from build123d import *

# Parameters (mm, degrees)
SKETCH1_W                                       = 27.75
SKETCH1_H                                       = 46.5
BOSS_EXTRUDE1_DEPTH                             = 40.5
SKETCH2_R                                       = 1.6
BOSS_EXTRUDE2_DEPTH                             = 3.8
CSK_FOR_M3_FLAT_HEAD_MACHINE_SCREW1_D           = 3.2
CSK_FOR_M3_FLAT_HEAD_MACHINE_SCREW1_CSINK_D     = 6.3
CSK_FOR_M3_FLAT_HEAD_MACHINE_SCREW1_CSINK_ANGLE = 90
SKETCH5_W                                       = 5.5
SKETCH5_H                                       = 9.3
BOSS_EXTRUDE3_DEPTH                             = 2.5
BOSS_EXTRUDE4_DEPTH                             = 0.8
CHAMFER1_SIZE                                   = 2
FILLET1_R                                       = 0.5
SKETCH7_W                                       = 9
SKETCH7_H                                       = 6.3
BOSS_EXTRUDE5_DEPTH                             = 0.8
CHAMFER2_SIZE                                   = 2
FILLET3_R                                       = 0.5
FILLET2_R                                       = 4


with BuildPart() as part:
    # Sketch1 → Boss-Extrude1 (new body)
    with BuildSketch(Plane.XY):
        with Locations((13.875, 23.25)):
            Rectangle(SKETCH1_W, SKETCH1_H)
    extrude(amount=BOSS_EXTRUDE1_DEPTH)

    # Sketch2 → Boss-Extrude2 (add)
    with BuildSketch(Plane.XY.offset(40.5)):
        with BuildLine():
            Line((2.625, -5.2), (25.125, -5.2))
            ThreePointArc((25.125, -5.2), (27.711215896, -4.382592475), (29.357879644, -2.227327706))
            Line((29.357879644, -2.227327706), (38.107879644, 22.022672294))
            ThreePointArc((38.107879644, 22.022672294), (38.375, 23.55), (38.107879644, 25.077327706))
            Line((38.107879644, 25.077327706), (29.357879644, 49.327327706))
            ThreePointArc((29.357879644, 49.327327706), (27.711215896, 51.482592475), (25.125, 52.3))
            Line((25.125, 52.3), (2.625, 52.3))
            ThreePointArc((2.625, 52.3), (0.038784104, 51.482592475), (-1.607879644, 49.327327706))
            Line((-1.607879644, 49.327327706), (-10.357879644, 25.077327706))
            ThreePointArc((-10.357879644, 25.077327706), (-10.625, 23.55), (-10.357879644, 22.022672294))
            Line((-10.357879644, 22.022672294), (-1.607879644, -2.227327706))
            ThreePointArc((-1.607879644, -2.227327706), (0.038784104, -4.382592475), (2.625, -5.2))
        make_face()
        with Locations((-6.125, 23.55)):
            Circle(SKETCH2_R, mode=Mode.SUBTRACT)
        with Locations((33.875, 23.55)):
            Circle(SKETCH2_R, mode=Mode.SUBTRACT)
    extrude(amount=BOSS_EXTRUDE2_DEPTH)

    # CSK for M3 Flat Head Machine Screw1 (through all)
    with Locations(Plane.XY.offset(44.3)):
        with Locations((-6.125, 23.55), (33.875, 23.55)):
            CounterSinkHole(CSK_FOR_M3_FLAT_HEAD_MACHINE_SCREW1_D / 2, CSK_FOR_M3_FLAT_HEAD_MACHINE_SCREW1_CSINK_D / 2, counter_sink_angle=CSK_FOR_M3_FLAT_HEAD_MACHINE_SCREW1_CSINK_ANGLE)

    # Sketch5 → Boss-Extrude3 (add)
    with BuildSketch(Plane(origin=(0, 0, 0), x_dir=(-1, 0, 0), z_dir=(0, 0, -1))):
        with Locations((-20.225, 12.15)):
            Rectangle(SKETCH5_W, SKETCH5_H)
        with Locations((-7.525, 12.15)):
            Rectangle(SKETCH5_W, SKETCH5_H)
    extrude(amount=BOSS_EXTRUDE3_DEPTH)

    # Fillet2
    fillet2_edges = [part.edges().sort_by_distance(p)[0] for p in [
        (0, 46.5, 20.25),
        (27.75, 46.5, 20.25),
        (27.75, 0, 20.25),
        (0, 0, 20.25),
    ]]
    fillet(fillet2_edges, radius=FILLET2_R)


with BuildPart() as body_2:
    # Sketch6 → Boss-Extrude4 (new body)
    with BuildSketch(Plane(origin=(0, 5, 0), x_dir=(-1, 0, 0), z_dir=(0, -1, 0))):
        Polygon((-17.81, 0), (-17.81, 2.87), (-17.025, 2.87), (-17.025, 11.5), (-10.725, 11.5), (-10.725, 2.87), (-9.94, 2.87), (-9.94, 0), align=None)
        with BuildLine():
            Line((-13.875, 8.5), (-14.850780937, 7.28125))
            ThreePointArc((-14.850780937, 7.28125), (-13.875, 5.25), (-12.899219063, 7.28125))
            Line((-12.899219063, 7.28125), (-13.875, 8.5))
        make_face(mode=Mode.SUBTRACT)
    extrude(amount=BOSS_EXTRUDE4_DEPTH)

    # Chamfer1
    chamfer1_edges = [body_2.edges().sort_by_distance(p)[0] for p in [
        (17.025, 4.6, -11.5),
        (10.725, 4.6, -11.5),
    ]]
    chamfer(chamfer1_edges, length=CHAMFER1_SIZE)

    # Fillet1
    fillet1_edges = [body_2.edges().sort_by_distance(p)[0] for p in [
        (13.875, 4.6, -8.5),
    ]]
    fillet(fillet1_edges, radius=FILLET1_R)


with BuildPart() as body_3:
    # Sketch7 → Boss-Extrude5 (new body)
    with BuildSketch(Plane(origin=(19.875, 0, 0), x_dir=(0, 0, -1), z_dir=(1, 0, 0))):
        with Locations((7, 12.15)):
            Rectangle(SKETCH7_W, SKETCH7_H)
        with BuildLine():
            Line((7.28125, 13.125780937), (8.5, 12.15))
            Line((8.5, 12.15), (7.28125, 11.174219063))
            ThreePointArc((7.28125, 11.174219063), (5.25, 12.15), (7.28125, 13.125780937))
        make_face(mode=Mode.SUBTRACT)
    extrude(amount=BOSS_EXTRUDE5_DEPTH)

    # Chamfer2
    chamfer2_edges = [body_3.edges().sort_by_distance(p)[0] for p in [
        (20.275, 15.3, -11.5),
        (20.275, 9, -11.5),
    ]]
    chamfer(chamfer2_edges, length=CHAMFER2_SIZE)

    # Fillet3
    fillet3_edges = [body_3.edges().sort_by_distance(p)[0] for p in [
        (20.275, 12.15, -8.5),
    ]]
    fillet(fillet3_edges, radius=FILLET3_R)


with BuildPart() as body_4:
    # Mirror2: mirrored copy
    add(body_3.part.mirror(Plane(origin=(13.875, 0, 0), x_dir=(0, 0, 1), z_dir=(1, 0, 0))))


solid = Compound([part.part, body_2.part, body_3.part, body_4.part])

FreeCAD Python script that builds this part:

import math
import FreeCAD as App
import Part
import Sketcher

V = App.Vector


def edges_at(feature, points):
    """Names of the edges that pass closest to the given points."""
    edges = feature.Shape.Edges
    near = lambda p: min(range(len(edges)), key=lambda i: edges[i].distToShape(Part.Vertex(*p))[0])
    return sorted({f"Edge{near(p) + 1}" for p in points})

doc = App.newDocument("Part")
body = doc.addObject("PartDesign::Body", "Body")

# Sketch on XY plane
sketch1 = doc.addObject("Sketcher::SketchObject", "Sketch")
body.addObject(sketch1)
sketch1.AttachmentSupport = (doc.XY_Plane, [""])
sketch1.MapMode = "FlatFace"
sketch1.addGeometry([
    Part.LineSegment(V(0, 46, 0), V(0, 0, 0)),
    Part.LineSegment(V(0, 0, 0), V(28, 0, 0)),
    Part.LineSegment(V(28, 0, 0), V(28, 46, 0)),
    Part.LineSegment(V(28, 46, 0), V(0, 46, 0)),
], False)
sketch1.addConstraint([
    Sketcher.Constraint("Coincident", 0, 2, 1, 1),
    Sketcher.Constraint("Coincident", 1, 2, 2, 1),
    Sketcher.Constraint("Coincident", 2, 2, 3, 1),
    Sketcher.Constraint("Coincident", 3, 2, 0, 1),
    Sketcher.Constraint("Vertical", 0),
    Sketcher.Constraint("Horizontal", 1),
    Sketcher.Constraint("Vertical", 2),
    Sketcher.Constraint("Horizontal", 3),
    Sketcher.Constraint("Coincident", 0, 2, -1, 1),
    Sketcher.Constraint("DistanceY", 0, 2, 0, 1, 46.5),
    Sketcher.Constraint("DistanceX", 1, 1, 1, 2, 27.75),
])
pad1 = doc.addObject("PartDesign::Pad", "Pad")
body.addObject(pad1)
pad1.Profile = sketch1
pad1.Length = 40.5

# Sketch on XY plane
sketch2 = doc.addObject("Sketcher::SketchObject", "Sketch001")
body.addObject(sketch2)
sketch2.AttachmentSupport = (doc.XY_Plane, [""])
sketch2.MapMode = "FlatFace"
sketch2.AttachmentOffset = App.Placement(V(0, 0, 40.5), App.Rotation())
sketch2.addGeometry([
    Part.LineSegment(V(2.6, -5.2, 0), V(25.1, -5.2, 0)),  # 0
    Part.ArcOfCircle(Part.Circle(V(25.1, -0.7, 0), V(0, 0, 1), 4.5), math.radians(-90), math.radians(-20)),  # 1
    Part.LineSegment(V(29.4, -2.2, 0), V(38.1, 22, 0)),  # 2
    Part.ArcOfCircle(Part.Circle(V(33.9, 23.6, 0), V(0, 0, 1), 4.5), math.radians(-20), math.radians(20)),  # 3
    Part.LineSegment(V(38.1, 25.1, 0), V(29.4, 49.3, 0)),  # 4
    Part.ArcOfCircle(Part.Circle(V(25.1, 47.8, 0), V(0, 0, 1), 4.5), math.radians(20), math.radians(90)),  # 5
    Part.LineSegment(V(25.1, 52.3, 0), V(2.6, 52.3, 0)),  # 6
    Part.ArcOfCircle(Part.Circle(V(2.6, 47.8, 0), V(0, 0, 1), 4.5), math.radians(90), math.radians(160)),  # 7
    Part.LineSegment(V(-1.6, 49.3, 0), V(-10.4, 25.1, 0)),  # 8
    Part.ArcOfCircle(Part.Circle(V(-6.1, 23.6, 0), V(0, 0, 1), 4.5), math.radians(160), math.radians(200)),  # 9
    Part.LineSegment(V(-10.4, 22, 0), V(-1.6, -2.2, 0)),  # 10
    Part.ArcOfCircle(Part.Circle(V(2.6, -0.7, 0), V(0, 0, 1), 4.5), math.radians(-160), math.radians(-90)),  # 11
    Part.Circle(V(-6.1, 23.6, 0), V(0, 0, 1), 1.6),  # 12
    Part.Circle(V(33.9, 23.6, 0), V(0, 0, 1), 1.6),  # 13
], False)
sketch2.addConstraint([
    Sketcher.Constraint("Tangent", 0, 2, 1, 1),
    Sketcher.Constraint("Tangent", 1, 2, 2, 1),
    Sketcher.Constraint("Tangent", 2, 2, 3, 1),
    Sketcher.Constraint("Tangent", 3, 2, 4, 1),
    Sketcher.Constraint("Tangent", 4, 2, 5, 1),
    Sketcher.Constraint("Tangent", 5, 2, 6, 1),
    Sketcher.Constraint("Tangent", 6, 2, 7, 1),
    Sketcher.Constraint("Tangent", 7, 2, 8, 1),
    Sketcher.Constraint("Tangent", 8, 2, 9, 1),
    Sketcher.Constraint("Tangent", 9, 2, 10, 1),
    Sketcher.Constraint("Tangent", 10, 2, 11, 1),
    Sketcher.Constraint("Tangent", 11, 2, 0, 1),
    Sketcher.Constraint("Horizontal", 0),
    Sketcher.Constraint("Horizontal", 6),
    Sketcher.Constraint("Coincident", 12, 3, 9, 3),
    Sketcher.Constraint("Coincident", 13, 3, 3, 3),
    Sketcher.Constraint("Equal", 1, 3),
    Sketcher.Constraint("Equal", 3, 5),
    Sketcher.Constraint("Equal", 5, 7),
    Sketcher.Constraint("Equal", 7, 9),
    Sketcher.Constraint("Equal", 9, 11),
    Sketcher.Constraint("Equal", 12, 13),
    Sketcher.Constraint("Parallel", 2, 8),
    Sketcher.Constraint("Parallel", 4, 10),
    Sketcher.Constraint("Horizontal", 3, 3, 9, 3),
    Sketcher.Constraint("Horizontal", 4, 2, 7, 2),
    Sketcher.Constraint("Vertical", 1, 3, 5, 3),
    Sketcher.Constraint("Diameter", 12, 3.2),
    Sketcher.Constraint("Radius", 1, 4.5),
    Sketcher.Constraint("DistanceX", 0, 1, 0, 2, 22.5),
    Sketcher.Constraint("DistanceX", 9, 3, 3, 3, 40.0),
    Sketcher.Constraint("DistanceY", 1, 3, -1, 1, 0.7),
    Sketcher.Constraint("DistanceY", -1, 1, 5, 3, 47.8),
    Sketcher.Constraint("DistanceX", -1, 1, 1, 3, 25.125),
])
pad2 = doc.addObject("PartDesign::Pad", "Pad001")
body.addObject(pad2)
pad2.Profile = sketch2
pad2.Length = 3.8

# Sketch on XY plane
sketch3 = doc.addObject("Sketcher::SketchObject", "Sketch002")
body.addObject(sketch3)
sketch3.AttachmentSupport = (doc.XY_Plane, [""])
sketch3.MapMode = "FlatFace"
sketch3.AttachmentOffset = App.Placement(V(0, 0, 44.3), App.Rotation())
sketch3.addGeometry([
    Part.Circle(V(-6.1, 23.6, 0), V(0, 0, 1), 1.6),
    Part.Circle(V(33.9, 23.6, 0), V(0, 0, 1), 1.6),
], False)
sketch3.addConstraint([
    Sketcher.Constraint("Equal", 0, 1),
    Sketcher.Constraint("Horizontal", 0, 3, 1, 3),
    Sketcher.Constraint("Diameter", 0, 3.2),
    Sketcher.Constraint("DistanceX", 0, 3, 1, 3, 40.0),
    Sketcher.Constraint("DistanceY", -1, 1, 0, 3, 23.55),
    Sketcher.Constraint("DistanceX", 0, 3, -1, 1, 6.125),
])
doc.recompute()
hole = doc.addObject("PartDesign::Hole", "Hole")
body.addObject(hole)
hole.Profile = sketch3
hole.ThreadType = "None"
hole.Diameter = 3.2
hole.DepthType = "ThroughAll"
hole.HoleCutType = "Countersink"
hole.HoleCutDiameter = 6.3
hole.HoleCutCountersinkAngle = 90

# Sketch on XY plane
sketch4 = doc.addObject("Sketcher::SketchObject", "Sketch003")
body.addObject(sketch4)
sketch4.AttachmentSupport = (doc.XY_Plane, [""])
sketch4.MapMode = "FlatFace"
sketch4.addGeometry([
    Part.LineSegment(V(23, 17, 0), V(23, 8, 0)),  # 0
    Part.LineSegment(V(23, 8, 0), V(17, 8, 0)),  # 1
    Part.LineSegment(V(17, 8, 0), V(17, 17, 0)),  # 2
    Part.LineSegment(V(17, 17, 0), V(23, 17, 0)),  # 3
    Part.LineSegment(V(10, 17, 0), V(10, 8, 0)),  # 4
    Part.LineSegment(V(10, 8, 0), V(5, 8, 0)),  # 5
    Part.LineSegment(V(5, 8, 0), V(5, 17, 0)),  # 6
    Part.LineSegment(V(5, 17, 0), V(10, 17, 0)),  # 7
], False)
sketch4.addConstraint([
    Sketcher.Constraint("Coincident", 0, 2, 1, 1),
    Sketcher.Constraint("Coincident", 1, 2, 2, 1),
    Sketcher.Constraint("Coincident", 2, 2, 3, 1),
    Sketcher.Constraint("Coincident", 3, 2, 0, 1),
    Sketcher.Constraint("Coincident", 4, 2, 5, 1),
    Sketcher.Constraint("Coincident", 5, 2, 6, 1),
    Sketcher.Constraint("Coincident", 6, 2, 7, 1),
    Sketcher.Constraint("Coincident", 7, 2, 4, 1),
    Sketcher.Constraint("Vertical", 0),
    Sketcher.Constraint("Horizontal", 1),
    Sketcher.Constraint("Vertical", 2),
    Sketcher.Constraint("Horizontal", 3),
    Sketcher.Constraint("Vertical", 4),
    Sketcher.Constraint("Horizontal", 5),
    Sketcher.Constraint("Vertical", 6),
    Sketcher.Constraint("Horizontal", 7),
    Sketcher.Constraint("Horizontal", 1, 2, 4, 2),
    Sketcher.Constraint("Horizontal", 3, 2, 6, 2),
    Sketcher.Constraint("Equal", 3, 5),
    Sketcher.Constraint("DistanceX", 1, 2, 1, 1, 5.5),
    Sketcher.Constraint("DistanceY", 0, 2, 0, 1, 9.3),
    Sketcher.Constraint("DistanceY", -1, 1, 0, 2, 7.5),
    Sketcher.Constraint("DistanceX", 4, 2, 1, 2, 7.2),
    Sketcher.Constraint("DistanceX", -1, 1, 0, 2, 22.975),
])
pad3 = doc.addObject("PartDesign::Pad", "Pad002")
body.addObject(pad3)
pad3.Profile = sketch4
pad3.Length = 2.5
pad3.Reversed = True
doc.recompute()

fillet = doc.addObject("PartDesign::Fillet", "Fillet")
body.addObject(fillet)
fillet.Base = (pad3, edges_at(pad3, [
    (0, 46.5, 20.25),
    (27.75, 46.5, 20.25),
    (27.75, 0, 20.25),
    (0, 0, 20.25),
]))
fillet.Radius = 4
body2 = doc.addObject("PartDesign::Body", "Body001")

# Sketch on XZ plane
sketch5 = doc.addObject("Sketcher::SketchObject", "Sketch004")
body2.addObject(sketch5)
sketch5.AttachmentSupport = (doc.getObject("XZ_Plane001"), [""])
sketch5.MapMode = "FlatFace"
sketch5.AttachmentOffset = App.Placement(V(0, 0, -5), App.Rotation())
sketch5.addGeometry([
    Part.LineSegment(V(17.8, -2.9, 0), V(17.8, 0, 0)),  # 0
    Part.LineSegment(V(17.8, 0, 0), V(9.9, 0, 0)),  # 1
    Part.LineSegment(V(9.9, 0, 0), V(9.9, -2.9, 0)),  # 2
    Part.LineSegment(V(9.9, -2.9, 0), V(10.7, -2.9, 0)),  # 3
    Part.LineSegment(V(10.7, -2.9, 0), V(10.7, -11.5, 0)),  # 4
    Part.LineSegment(V(10.7, -11.5, 0), V(17, -11.5, 0)),  # 5
    Part.LineSegment(V(17, -11.5, 0), V(17, -2.9, 0)),  # 6
    Part.LineSegment(V(17, -2.9, 0), V(17.8, -2.9, 0)),  # 7
    Part.LineSegment(V(13.9, -8.5, 0), V(12.9, -7.3, 0)),  # 8
    Part.ArcOfCircle(Part.Circle(V(13.9, -6.5, 0), V(0, 0, 1), 1.2), math.radians(-39), math.radians(219)),  # 9
    Part.LineSegment(V(14.9, -7.3, 0), V(13.9, -8.5, 0)),  # 10
], False)
sketch5.addConstraint([
    Sketcher.Constraint("Coincident", 0, 2, 1, 1),
    Sketcher.Constraint("Coincident", 1, 2, 2, 1),
    Sketcher.Constraint("Coincident", 2, 2, 3, 1),
    Sketcher.Constraint("Coincident", 3, 2, 4, 1),
    Sketcher.Constraint("Coincident", 4, 2, 5, 1),
    Sketcher.Constraint("Coincident", 5, 2, 6, 1),
    Sketcher.Constraint("Coincident", 6, 2, 7, 1),
    Sketcher.Constraint("Coincident", 7, 2, 0, 1),
    Sketcher.Constraint("Tangent", 8, 2, 9, 2),
    Sketcher.Constraint("Tangent", 9, 1, 10, 1),
    Sketcher.Constraint("Coincident", 10, 2, 8, 1),
    Sketcher.Constraint("Vertical", 0),
    Sketcher.Constraint("Horizontal", 1),
    Sketcher.Constraint("Vertical", 2),
    Sketcher.Constraint("Horizontal", 3),
    Sketcher.Constraint("Vertical", 4),
    Sketcher.Constraint("Horizontal", 5),
    Sketcher.Constraint("Vertical", 6),
    Sketcher.Constraint("Horizontal", 7),
    Sketcher.Constraint("PointOnObject", 0, 2, -1),
    Sketcher.Constraint("Horizontal", 3, 2, 6, 2),
    Sketcher.Constraint("Horizontal", 8, 2, 9, 1),
    Sketcher.Constraint("Equal", 3, 7),
    Sketcher.Constraint("Radius", 9, 1.25),
    Sketcher.Constraint("DistanceX", 5, 1, 5, 2, 6.3),
    Sketcher.Constraint("DistanceY", 4, 2, 9, 3, 5.0),
    Sketcher.Constraint("DistanceY", 10, 2, 9, 3, 2.0),
    Sketcher.Constraint("DistanceX", 1, 2, 1, 1, 7.87),
    Sketcher.Constraint("DistanceY", 0, 1, 0, 2, 2.87),
    Sketcher.Constraint("DistanceY", 4, 2, 4, 1, 8.63),
    Sketcher.Constraint("DistanceX", -1, 1, 0, 2, 17.81),
    Sketcher.Constraint("DistanceX", 3, 2, 9, 3, 3.15),
])
pad4 = doc.addObject("PartDesign::Pad", "Pad003")
body2.addObject(pad4)
pad4.Profile = sketch5
pad4.Length = 0.8
doc.recompute()

chamfer = doc.addObject("PartDesign::Chamfer", "Chamfer")
body2.addObject(chamfer)
chamfer.Base = (pad4, edges_at(pad4, [(17.025, 4.6, -11.5), (10.725, 4.6, -11.5)]))
chamfer.Size = 2
doc.recompute()

fillet2 = doc.addObject("PartDesign::Fillet", "Fillet001")
body2.addObject(fillet2)
fillet2.Base = (chamfer, edges_at(chamfer, [(13.875, 4.6, -8.5)]))
fillet2.Radius = 0.5
body3 = doc.addObject("PartDesign::Body", "Body002")

# Sketch on YZ plane
sketch6 = doc.addObject("Sketcher::SketchObject", "Sketch005")
body3.addObject(sketch6)
sketch6.AttachmentSupport = (doc.getObject("YZ_Plane002"), [""])
sketch6.MapMode = "FlatFace"
sketch6.AttachmentOffset = App.Placement(V(0, 0, 19.875), App.Rotation())
sketch6.addGeometry([
    Part.LineSegment(V(15.3, -2.5, 0), V(9, -2.5, 0)),  # 0
    Part.LineSegment(V(9, -2.5, 0), V(9, -11.5, 0)),  # 1
    Part.LineSegment(V(9, -11.5, 0), V(15.3, -11.5, 0)),  # 2
    Part.LineSegment(V(15.3, -11.5, 0), V(15.3, -2.5, 0)),  # 3
    Part.ArcOfCircle(Part.Circle(V(12.2, -6.5, 0), V(0, 0, 1), 1.2), math.radians(-39), math.radians(219)),  # 4
    Part.LineSegment(V(13.1, -7.3, 0), V(12.2, -8.5, 0)),  # 5
    Part.LineSegment(V(12.2, -8.5, 0), V(11.2, -7.3, 0)),  # 6
], False)
sketch6.addConstraint([
    Sketcher.Constraint("Coincident", 0, 2, 1, 1),
    Sketcher.Constraint("Coincident", 1, 2, 2, 1),
    Sketcher.Constraint("Coincident", 2, 2, 3, 1),
    Sketcher.Constraint("Coincident", 3, 2, 0, 1),
    Sketcher.Constraint("Tangent", 4, 1, 5, 1),
    Sketcher.Constraint("Coincident", 5, 2, 6, 1),
    Sketcher.Constraint("Tangent", 6, 2, 4, 2),
    Sketcher.Constraint("Horizontal", 0),
    Sketcher.Constraint("Vertical", 1),
    Sketcher.Constraint("Horizontal", 2),
    Sketcher.Constraint("Vertical", 3),
    Sketcher.Constraint("Horizontal", 4, 1, 6, 2),
    Sketcher.Constraint("DistanceY", 1, 2, 1, 1, 9.0),
    Sketcher.Constraint("Radius", 4, 1.25),
    Sketcher.Constraint("DistanceX", 0, 2, 0, 1, 6.3),
    Sketcher.Constraint("DistanceX", -1, 1, 0, 2, 9.0),
    Sketcher.Constraint("DistanceY", 4, 3, 0, 2, 4.0),
    Sketcher.Constraint("DistanceY", 5, 2, 4, 3, 2.0),
    Sketcher.Constraint("DistanceY", 4, 3, -1, 1, 6.5),
    Sketcher.Constraint("DistanceX", -1, 1, 4, 3, 12.15),
])
pad5 = doc.addObject("PartDesign::Pad", "Pad004")
body3.addObject(pad5)
pad5.Profile = sketch6
pad5.Length = 0.8
doc.recompute()

chamfer2 = doc.addObject("PartDesign::Chamfer", "Chamfer001")
body3.addObject(chamfer2)
chamfer2.Base = (pad5, edges_at(pad5, [(20.275, 15.3, -11.5), (20.275, 9, -11.5)]))
chamfer2.Size = 2
doc.recompute()

fillet3 = doc.addObject("PartDesign::Fillet", "Fillet002")
body3.addObject(fillet3)
fillet3.Base = (chamfer2, edges_at(chamfer2, [(20.275, 12.15, -8.5)]))
fillet3.Radius = 0.5
body4 = doc.addObject("PartDesign::Body", "Body003")
doc.recompute()

mirroring = doc.addObject("Part::Mirroring", "Mirroring")
mirroring.Source = body3
mirroring.Base = V(13.875, 0, 0)
mirroring.Normal = V(1, 0, 0)
body4.BaseFeature = mirroring
doc.recompute()
mirroring.Visibility = False

doc.recompute()
